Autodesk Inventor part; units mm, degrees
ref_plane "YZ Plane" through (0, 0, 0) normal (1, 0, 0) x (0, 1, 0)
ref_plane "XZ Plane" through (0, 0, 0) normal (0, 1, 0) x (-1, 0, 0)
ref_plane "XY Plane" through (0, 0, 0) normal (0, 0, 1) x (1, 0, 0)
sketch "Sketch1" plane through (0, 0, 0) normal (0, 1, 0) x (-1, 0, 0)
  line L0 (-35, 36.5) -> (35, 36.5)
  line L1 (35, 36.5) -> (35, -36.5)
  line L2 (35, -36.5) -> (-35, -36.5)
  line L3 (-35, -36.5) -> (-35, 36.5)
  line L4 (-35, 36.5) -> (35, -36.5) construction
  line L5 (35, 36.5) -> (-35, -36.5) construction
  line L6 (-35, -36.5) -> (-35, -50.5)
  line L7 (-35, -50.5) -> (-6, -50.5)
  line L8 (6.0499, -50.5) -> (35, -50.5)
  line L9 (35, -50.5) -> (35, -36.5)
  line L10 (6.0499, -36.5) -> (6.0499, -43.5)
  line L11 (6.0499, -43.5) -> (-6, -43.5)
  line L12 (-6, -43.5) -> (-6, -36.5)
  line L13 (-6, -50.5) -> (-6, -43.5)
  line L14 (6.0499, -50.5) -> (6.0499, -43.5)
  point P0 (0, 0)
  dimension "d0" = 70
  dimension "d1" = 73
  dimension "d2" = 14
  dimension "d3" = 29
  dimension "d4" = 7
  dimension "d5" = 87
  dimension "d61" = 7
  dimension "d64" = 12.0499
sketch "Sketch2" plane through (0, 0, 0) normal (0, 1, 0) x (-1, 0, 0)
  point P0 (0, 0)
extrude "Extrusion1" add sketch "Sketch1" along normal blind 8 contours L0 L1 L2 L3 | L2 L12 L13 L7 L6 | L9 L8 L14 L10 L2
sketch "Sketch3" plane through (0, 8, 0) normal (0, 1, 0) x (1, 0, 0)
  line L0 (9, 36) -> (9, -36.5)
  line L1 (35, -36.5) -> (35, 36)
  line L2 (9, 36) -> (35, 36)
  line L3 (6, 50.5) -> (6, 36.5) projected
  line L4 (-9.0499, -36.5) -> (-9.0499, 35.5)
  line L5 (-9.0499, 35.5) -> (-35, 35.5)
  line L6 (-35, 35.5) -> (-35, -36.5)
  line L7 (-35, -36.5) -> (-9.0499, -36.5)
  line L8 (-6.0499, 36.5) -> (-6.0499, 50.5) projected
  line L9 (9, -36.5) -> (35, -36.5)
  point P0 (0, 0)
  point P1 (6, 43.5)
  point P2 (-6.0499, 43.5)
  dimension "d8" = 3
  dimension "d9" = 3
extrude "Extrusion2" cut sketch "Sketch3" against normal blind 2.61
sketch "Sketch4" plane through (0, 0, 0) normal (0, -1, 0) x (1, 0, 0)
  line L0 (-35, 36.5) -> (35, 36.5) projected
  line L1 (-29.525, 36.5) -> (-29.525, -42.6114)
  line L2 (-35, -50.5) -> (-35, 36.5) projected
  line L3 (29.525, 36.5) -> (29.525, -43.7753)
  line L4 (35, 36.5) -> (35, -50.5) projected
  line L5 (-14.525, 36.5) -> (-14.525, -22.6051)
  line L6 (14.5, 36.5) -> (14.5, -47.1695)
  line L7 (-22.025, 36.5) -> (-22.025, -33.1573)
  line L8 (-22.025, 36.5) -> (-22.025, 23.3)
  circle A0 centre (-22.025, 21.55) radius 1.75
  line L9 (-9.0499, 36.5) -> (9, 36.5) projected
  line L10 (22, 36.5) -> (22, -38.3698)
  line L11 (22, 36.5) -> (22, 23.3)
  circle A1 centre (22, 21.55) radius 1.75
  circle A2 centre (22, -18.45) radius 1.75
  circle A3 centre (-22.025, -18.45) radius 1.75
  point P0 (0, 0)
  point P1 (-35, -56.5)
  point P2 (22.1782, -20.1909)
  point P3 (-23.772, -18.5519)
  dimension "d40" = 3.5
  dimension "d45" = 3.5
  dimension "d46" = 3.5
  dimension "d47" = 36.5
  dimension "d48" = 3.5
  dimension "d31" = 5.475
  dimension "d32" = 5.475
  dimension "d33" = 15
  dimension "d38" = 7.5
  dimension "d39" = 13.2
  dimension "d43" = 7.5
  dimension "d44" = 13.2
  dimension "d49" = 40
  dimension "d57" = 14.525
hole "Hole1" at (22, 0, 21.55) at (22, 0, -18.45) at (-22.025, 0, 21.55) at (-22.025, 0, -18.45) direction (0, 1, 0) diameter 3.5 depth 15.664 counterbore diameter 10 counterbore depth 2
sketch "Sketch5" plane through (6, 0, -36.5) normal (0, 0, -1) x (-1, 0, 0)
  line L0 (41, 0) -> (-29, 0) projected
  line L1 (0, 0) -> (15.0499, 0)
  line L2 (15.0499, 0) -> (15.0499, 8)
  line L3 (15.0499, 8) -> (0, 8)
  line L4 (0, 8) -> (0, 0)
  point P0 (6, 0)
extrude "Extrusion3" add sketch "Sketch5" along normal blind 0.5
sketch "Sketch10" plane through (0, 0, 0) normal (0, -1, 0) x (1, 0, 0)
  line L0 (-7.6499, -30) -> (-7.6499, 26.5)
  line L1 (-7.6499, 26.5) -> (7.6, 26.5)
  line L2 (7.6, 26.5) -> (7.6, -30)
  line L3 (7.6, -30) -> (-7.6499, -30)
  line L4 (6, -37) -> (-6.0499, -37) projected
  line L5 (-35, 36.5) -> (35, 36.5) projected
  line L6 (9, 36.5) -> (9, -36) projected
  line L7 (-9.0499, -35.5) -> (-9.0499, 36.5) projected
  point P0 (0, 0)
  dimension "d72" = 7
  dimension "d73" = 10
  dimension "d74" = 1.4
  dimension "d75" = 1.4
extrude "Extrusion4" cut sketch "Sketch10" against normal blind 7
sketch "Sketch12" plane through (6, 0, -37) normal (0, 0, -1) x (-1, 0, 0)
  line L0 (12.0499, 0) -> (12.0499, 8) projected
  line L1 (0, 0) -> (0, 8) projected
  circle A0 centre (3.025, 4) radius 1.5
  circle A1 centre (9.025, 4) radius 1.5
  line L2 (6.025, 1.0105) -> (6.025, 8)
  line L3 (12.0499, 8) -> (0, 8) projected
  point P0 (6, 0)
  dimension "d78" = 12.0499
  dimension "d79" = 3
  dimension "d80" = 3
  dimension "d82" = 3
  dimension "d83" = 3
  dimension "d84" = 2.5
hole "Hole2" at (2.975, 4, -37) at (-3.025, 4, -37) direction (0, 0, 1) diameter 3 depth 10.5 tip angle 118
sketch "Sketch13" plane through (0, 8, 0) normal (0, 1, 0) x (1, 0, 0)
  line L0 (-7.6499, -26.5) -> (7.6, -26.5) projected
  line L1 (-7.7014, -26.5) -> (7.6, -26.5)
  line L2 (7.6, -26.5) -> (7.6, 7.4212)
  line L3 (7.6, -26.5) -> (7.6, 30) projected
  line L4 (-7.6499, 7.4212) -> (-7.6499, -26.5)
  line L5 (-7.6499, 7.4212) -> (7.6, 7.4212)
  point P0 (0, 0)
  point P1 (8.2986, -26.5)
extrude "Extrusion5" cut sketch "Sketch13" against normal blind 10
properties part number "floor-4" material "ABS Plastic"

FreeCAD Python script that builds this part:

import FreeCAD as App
import Part
import Sketcher
from FreeCAD import Vector


def add_polygon(sketch, points):
    """Adds a closed chain of lines whose ends are joined by coincident constraints."""
    first, n = sketch.GeometryCount, len(points)
    for a, b in zip(points, points[1:] + points[:1]):
        sketch.addGeometry(Part.LineSegment(App.Vector(*a, 0), App.Vector(*b, 0)), False)
    for i in range(n):
        sketch.addConstraint(Sketcher.Constraint("Coincident", first + i, 2, first + (i + 1) % n, 1))

doc = App.newDocument("Part")
body = doc.addObject("PartDesign::Body", "Body")

sketch1 = doc.addObject("Sketcher::SketchObject", "Sketch")
body.addObject(sketch1)
sketch1.AttachmentSupport = (doc.XZ_Plane, [""])
sketch1.MapMode = "FlatFace"
add_polygon(sketch1, [(-35, 36), (35, 36), (35, -50), (6, -50), (6, -36), (-6, -36), (-6, -50), (-35, -50)])
sketch1.addConstraint(Sketcher.Constraint("Horizontal", 0))
sketch1.addConstraint(Sketcher.Constraint("Vertical", 1))
sketch1.addConstraint(Sketcher.Constraint("Horizontal", 2))
sketch1.addConstraint(Sketcher.Constraint("Vertical", 3))
sketch1.addConstraint(Sketcher.Constraint("Horizontal", 4))
sketch1.addConstraint(Sketcher.Constraint("Vertical", 5))
sketch1.addConstraint(Sketcher.Constraint("Horizontal", 6))
sketch1.addConstraint(Sketcher.Constraint("Vertical", 7))
sketch1.addConstraint(Sketcher.Constraint("Symmetric", 1, 2, 6, 2, -2))
sketch1.addConstraint(Sketcher.Constraint("DistanceX", 0, 1, 0, 2, 70.0))
sketch1.addConstraint(Sketcher.Constraint("DistanceX", 2, 2, 2, 1, 29.0))
sketch1.addConstraint(Sketcher.Constraint("DistanceY", 1, 2, 1, 1, 87.0))
sketch1.addConstraint(Sketcher.Constraint("DistanceY", 3, 1, 3, 2, 14.0))
sketch1.addConstraint(Sketcher.Constraint("DistanceX", 4, 2, 4, 1, 12.05))
sketch1.addConstraint(Sketcher.Constraint("DistanceY", -1, 1, 0, 2, 36.5))
pad1 = doc.addObject("PartDesign::Pad", "Pad")
body.addObject(pad1)
pad1.Profile = sketch1
pad1.Length = 8
pad1.Reversed = True

sketch2 = doc.addObject("Sketcher::SketchObject", "Sketch001")
body.addObject(sketch2)
sketch2.AttachmentSupport = (doc.XZ_Plane, [""])
sketch2.MapMode = "FlatFace"
sketch2.AttachmentOffset = App.Placement(Vector(0, 0, -8), App.Rotation())
add_polygon(sketch2, [(35, -36), (9, -36), (9, 36), (35, 36)])
add_polygon(sketch2, [(-35, 36), (-9, 36), (-9, -36), (-35, -36)])
sketch2.addConstraint(Sketcher.Constraint("Horizontal", 0))
sketch2.addConstraint(Sketcher.Constraint("Vertical", 1))
sketch2.addConstraint(Sketcher.Constraint("Horizontal", 2))
sketch2.addConstraint(Sketcher.Constraint("Vertical", 3))
sketch2.addConstraint(Sketcher.Constraint("Horizontal", 4))
sketch2.addConstraint(Sketcher.Constraint("Vertical", 5))
sketch2.addConstraint(Sketcher.Constraint("Horizontal", 6))
sketch2.addConstraint(Sketcher.Constraint("Vertical", 7))
sketch2.addConstraint(Sketcher.Constraint("Symmetric", 2, 2, 7, 2, -2))
sketch2.addConstraint(Sketcher.Constraint("DistanceX", 0, 2, 0, 1, 26.0))
sketch2.addConstraint(Sketcher.Constraint("DistanceY", 5, 2, 5, 1, 72.0))
sketch2.addConstraint(Sketcher.Constraint("DistanceY", 1, 1, 1, 2, 72.5))
sketch2.addConstraint(Sketcher.Constraint("DistanceX", -1, 1, 0, 2, 9.0))
sketch2.addConstraint(Sketcher.Constraint("DistanceY", 0, 2, -1, 1, 36.0))
sketch2.addConstraint(Sketcher.Constraint("DistanceX", 4, 1, 4, 2, 25.95))
pocket1 = doc.addObject("PartDesign::Pocket", "Pocket")
body.addObject(pocket1)
pocket1.Profile = sketch2
pocket1.Length = 2.61
pocket1.Reversed = True

sketch3 = doc.addObject("Sketcher::SketchObject", "Sketch002")
body.addObject(sketch3)
sketch3.AttachmentSupport = (doc.XZ_Plane, [""])
sketch3.MapMode = "FlatFace"
sketch3.addGeometry(Part.Circle(Vector(22, 21.6, 0), Vector(0, 0, 1), 1.8), False)
sketch3.addGeometry(Part.Circle(Vector(22, -18.4, 0), Vector(0, 0, 1), 1.8), False)
sketch3.addGeometry(Part.Circle(Vector(-22, 21.6, 0), Vector(0, 0, 1), 1.8), False)
sketch3.addGeometry(Part.Circle(Vector(-22, -18.4, 0), Vector(0, 0, 1), 1.8), False)
sketch3.addConstraint(Sketcher.Constraint("Equal", 0, 1))
sketch3.addConstraint(Sketcher.Constraint("Equal", 1, 2))
sketch3.addConstraint(Sketcher.Constraint("Equal", 2, 3))
sketch3.addConstraint(Sketcher.Constraint("Horizontal", 0, 3, 2, 3))
sketch3.addConstraint(Sketcher.Constraint("Horizontal", 1, 3, 3, 3))
sketch3.addConstraint(Sketcher.Constraint("Vertical", 0, 3, 1, 3))
sketch3.addConstraint(Sketcher.Constraint("Vertical", 2, 3, 3, 3))
sketch3.addConstraint(Sketcher.Constraint("Diameter", 0, 3.5))
sketch3.addConstraint(Sketcher.Constraint("DistanceX", -1, 1, 0, 3, 22.0))
sketch3.addConstraint(Sketcher.Constraint("DistanceY", 1, 3, 0, 3, 40.0))
sketch3.addConstraint(Sketcher.Constraint("DistanceY", -1, 1, 0, 3, 21.55))
sketch3.addConstraint(Sketcher.Constraint("DistanceX", 2, 3, -1, 1, 22.025))
doc.recompute()
hole = doc.addObject("PartDesign::Hole", "Hole")
body.addObject(hole)
hole.Profile = sketch3
hole.ThreadType = "None"
hole.Diameter = 3.5
hole.DepthType = "Dimension"
hole.Depth = 15.664
hole.DrillPoint = "Flat"
hole.HoleCutType = "Counterbore"
hole.HoleCutDiameter = 10
hole.HoleCutDepth = 2

sketch4 = doc.addObject("Sketcher::SketchObject", "Sketch003")
body.addObject(sketch4)
sketch4.AttachmentSupport = (doc.XY_Plane, [""])
sketch4.MapMode = "FlatFace"
sketch4.AttachmentOffset = App.Placement(Vector(0, 0, -36.5), App.Rotation())
add_polygon(sketch4, [(6, 0), (-9, 0), (-9, 8), (6, 8)])
sketch4.addConstraint(Sketcher.Constraint("Horizontal", 0))
sketch4.addConstraint(Sketcher.Constraint("Vertical", 1))
sketch4.addConstraint(Sketcher.Constraint("Horizontal", 2))
sketch4.addConstraint(Sketcher.Constraint("Vertical", 3))
sketch4.addConstraint(Sketcher.Constraint("PointOnObject", 0, 2, -1))
sketch4.addConstraint(Sketcher.Constraint("DistanceY", 1, 1, 1, 2, 8.0))
sketch4.addConstraint(Sketcher.Constraint("DistanceX", -1, 1, 2, 2, 6.0))
sketch4.addConstraint(Sketcher.Constraint("DistanceX", 0, 2, 0, 1, 15.05))
pad2 = doc.addObject("PartDesign::Pad", "Pad001")
body.addObject(pad2)
pad2.Profile = sketch4
pad2.Length = 0.5
pad2.Reversed = True

sketch5 = doc.addObject("Sketcher::SketchObject", "Sketch004")
body.addObject(sketch5)
sketch5.AttachmentSupport = (doc.XZ_Plane, [""])
sketch5.MapMode = "FlatFace"
add_polygon(sketch5, [(-8, 26), (-8, -30), (8, -30), (8, 26)])
sketch5.addConstraint(Sketcher.Constraint("Vertical", 0))
sketch5.addConstraint(Sketcher.Constraint("Horizontal", 1))
sketch5.addConstraint(Sketcher.Constraint("Vertical", 2))
sketch5.addConstraint(Sketcher.Constraint("Horizontal", 3))
sketch5.addConstraint(Sketcher.Constraint("DistanceY", 0, 2, 0, 1, 56.5))
sketch5.addConstraint(Sketcher.Constraint("DistanceY", 0, 2, -1, 1, 30.0))
sketch5.addConstraint(Sketcher.Constraint("DistanceX", 1, 1, 1, 2, 15.25))
sketch5.addConstraint(Sketcher.Constraint("DistanceX", -1, 1, 1, 2, 7.6))
pocket2 = doc.addObject("PartDesign::Pocket", "Pocket001")
body.addObject(pocket2)
pocket2.Profile = sketch5
pocket2.Length = 7

sketch6 = doc.addObject("Sketcher::SketchObject", "Sketch005")
body.addObject(sketch6)
sketch6.AttachmentSupport = (doc.XY_Plane, [""])
sketch6.MapMode = "FlatFace"
sketch6.AttachmentOffset = App.Placement(Vector(0, 0, -37), App.Rotation())
sketch6.addGeometry(Part.Circle(Vector(3, 4, 0), Vector(0, 0, 1), 1.5), False)
sketch6.addGeometry(Part.Circle(Vector(-3, 4, 0), Vector(0, 0, 1), 1.5), False)
sketch6.addConstraint(Sketcher.Constraint("Equal", 0, 1))
sketch6.addConstraint(Sketcher.Constraint("Horizontal", 0, 3, 1, 3))
sketch6.addConstraint(Sketcher.Constraint("Diameter", 0, 3.0))
sketch6.addConstraint(Sketcher.Constraint("DistanceY", -1, 1, 0, 3, 4.0))
sketch6.addConstraint(Sketcher.Constraint("DistanceX", 1, 3, 0, 3, 6.0))
sketch6.addConstraint(Sketcher.Constraint("DistanceX", -1, 1, 0, 3, 2.975))
doc.recompute()
hole2 = doc.addObject("PartDesign::Hole", "Hole001")
body.addObject(hole2)
hole2.Profile = sketch6
hole2.ThreadType = "None"
hole2.Diameter = 3
hole2.DepthType = "Dimension"
hole2.Depth = 10.5
hole2.DrillPoint = "Angled"
hole2.DrillPointAngle = 118
hole2.Reversed = True

sketch7 = doc.addObject("Sketcher::SketchObject", "Sketch006")
body.addObject(sketch7)
sketch7.AttachmentSupport = (doc.XZ_Plane, [""])
sketch7.MapMode = "FlatFace"
sketch7.AttachmentOffset = App.Placement(Vector(0, 0, -8), App.Rotation())
add_polygon(sketch7, [(-8, -7), (-8, 26), (8, 26), (8, -7)])
sketch7.addConstraint(Sketcher.Constraint("Vertical", 0))
sketch7.addConstraint(Sketcher.Constraint("Horizontal", 1))
sketch7.addConstraint(Sketcher.Constraint("Vertical", 2))
sketch7.addConstraint(Sketcher.Constraint("Horizontal", 3))
sketch7.addConstraint(Sketcher.Constraint("DistanceX", 1, 1, 1, 2, 15.25))
sketch7.addConstraint(Sketcher.Constraint("DistanceY", -1, 1, 0, 2, 26.5))
sketch7.addConstraint(Sketcher.Constraint("DistanceX", -1, 1, 1, 2, 7.6))
sketch7.addConstraint(Sketcher.Constraint("DistanceY", 0, 1, 0, 2, 33.9212))
pocket3 = doc.addObject("PartDesign::Pocket", "Pocket002")
body.addObject(pocket3)
pocket3.Profile = sketch7
pocket3.Length = 10
pocket3.Reversed = True

doc.recompute()
